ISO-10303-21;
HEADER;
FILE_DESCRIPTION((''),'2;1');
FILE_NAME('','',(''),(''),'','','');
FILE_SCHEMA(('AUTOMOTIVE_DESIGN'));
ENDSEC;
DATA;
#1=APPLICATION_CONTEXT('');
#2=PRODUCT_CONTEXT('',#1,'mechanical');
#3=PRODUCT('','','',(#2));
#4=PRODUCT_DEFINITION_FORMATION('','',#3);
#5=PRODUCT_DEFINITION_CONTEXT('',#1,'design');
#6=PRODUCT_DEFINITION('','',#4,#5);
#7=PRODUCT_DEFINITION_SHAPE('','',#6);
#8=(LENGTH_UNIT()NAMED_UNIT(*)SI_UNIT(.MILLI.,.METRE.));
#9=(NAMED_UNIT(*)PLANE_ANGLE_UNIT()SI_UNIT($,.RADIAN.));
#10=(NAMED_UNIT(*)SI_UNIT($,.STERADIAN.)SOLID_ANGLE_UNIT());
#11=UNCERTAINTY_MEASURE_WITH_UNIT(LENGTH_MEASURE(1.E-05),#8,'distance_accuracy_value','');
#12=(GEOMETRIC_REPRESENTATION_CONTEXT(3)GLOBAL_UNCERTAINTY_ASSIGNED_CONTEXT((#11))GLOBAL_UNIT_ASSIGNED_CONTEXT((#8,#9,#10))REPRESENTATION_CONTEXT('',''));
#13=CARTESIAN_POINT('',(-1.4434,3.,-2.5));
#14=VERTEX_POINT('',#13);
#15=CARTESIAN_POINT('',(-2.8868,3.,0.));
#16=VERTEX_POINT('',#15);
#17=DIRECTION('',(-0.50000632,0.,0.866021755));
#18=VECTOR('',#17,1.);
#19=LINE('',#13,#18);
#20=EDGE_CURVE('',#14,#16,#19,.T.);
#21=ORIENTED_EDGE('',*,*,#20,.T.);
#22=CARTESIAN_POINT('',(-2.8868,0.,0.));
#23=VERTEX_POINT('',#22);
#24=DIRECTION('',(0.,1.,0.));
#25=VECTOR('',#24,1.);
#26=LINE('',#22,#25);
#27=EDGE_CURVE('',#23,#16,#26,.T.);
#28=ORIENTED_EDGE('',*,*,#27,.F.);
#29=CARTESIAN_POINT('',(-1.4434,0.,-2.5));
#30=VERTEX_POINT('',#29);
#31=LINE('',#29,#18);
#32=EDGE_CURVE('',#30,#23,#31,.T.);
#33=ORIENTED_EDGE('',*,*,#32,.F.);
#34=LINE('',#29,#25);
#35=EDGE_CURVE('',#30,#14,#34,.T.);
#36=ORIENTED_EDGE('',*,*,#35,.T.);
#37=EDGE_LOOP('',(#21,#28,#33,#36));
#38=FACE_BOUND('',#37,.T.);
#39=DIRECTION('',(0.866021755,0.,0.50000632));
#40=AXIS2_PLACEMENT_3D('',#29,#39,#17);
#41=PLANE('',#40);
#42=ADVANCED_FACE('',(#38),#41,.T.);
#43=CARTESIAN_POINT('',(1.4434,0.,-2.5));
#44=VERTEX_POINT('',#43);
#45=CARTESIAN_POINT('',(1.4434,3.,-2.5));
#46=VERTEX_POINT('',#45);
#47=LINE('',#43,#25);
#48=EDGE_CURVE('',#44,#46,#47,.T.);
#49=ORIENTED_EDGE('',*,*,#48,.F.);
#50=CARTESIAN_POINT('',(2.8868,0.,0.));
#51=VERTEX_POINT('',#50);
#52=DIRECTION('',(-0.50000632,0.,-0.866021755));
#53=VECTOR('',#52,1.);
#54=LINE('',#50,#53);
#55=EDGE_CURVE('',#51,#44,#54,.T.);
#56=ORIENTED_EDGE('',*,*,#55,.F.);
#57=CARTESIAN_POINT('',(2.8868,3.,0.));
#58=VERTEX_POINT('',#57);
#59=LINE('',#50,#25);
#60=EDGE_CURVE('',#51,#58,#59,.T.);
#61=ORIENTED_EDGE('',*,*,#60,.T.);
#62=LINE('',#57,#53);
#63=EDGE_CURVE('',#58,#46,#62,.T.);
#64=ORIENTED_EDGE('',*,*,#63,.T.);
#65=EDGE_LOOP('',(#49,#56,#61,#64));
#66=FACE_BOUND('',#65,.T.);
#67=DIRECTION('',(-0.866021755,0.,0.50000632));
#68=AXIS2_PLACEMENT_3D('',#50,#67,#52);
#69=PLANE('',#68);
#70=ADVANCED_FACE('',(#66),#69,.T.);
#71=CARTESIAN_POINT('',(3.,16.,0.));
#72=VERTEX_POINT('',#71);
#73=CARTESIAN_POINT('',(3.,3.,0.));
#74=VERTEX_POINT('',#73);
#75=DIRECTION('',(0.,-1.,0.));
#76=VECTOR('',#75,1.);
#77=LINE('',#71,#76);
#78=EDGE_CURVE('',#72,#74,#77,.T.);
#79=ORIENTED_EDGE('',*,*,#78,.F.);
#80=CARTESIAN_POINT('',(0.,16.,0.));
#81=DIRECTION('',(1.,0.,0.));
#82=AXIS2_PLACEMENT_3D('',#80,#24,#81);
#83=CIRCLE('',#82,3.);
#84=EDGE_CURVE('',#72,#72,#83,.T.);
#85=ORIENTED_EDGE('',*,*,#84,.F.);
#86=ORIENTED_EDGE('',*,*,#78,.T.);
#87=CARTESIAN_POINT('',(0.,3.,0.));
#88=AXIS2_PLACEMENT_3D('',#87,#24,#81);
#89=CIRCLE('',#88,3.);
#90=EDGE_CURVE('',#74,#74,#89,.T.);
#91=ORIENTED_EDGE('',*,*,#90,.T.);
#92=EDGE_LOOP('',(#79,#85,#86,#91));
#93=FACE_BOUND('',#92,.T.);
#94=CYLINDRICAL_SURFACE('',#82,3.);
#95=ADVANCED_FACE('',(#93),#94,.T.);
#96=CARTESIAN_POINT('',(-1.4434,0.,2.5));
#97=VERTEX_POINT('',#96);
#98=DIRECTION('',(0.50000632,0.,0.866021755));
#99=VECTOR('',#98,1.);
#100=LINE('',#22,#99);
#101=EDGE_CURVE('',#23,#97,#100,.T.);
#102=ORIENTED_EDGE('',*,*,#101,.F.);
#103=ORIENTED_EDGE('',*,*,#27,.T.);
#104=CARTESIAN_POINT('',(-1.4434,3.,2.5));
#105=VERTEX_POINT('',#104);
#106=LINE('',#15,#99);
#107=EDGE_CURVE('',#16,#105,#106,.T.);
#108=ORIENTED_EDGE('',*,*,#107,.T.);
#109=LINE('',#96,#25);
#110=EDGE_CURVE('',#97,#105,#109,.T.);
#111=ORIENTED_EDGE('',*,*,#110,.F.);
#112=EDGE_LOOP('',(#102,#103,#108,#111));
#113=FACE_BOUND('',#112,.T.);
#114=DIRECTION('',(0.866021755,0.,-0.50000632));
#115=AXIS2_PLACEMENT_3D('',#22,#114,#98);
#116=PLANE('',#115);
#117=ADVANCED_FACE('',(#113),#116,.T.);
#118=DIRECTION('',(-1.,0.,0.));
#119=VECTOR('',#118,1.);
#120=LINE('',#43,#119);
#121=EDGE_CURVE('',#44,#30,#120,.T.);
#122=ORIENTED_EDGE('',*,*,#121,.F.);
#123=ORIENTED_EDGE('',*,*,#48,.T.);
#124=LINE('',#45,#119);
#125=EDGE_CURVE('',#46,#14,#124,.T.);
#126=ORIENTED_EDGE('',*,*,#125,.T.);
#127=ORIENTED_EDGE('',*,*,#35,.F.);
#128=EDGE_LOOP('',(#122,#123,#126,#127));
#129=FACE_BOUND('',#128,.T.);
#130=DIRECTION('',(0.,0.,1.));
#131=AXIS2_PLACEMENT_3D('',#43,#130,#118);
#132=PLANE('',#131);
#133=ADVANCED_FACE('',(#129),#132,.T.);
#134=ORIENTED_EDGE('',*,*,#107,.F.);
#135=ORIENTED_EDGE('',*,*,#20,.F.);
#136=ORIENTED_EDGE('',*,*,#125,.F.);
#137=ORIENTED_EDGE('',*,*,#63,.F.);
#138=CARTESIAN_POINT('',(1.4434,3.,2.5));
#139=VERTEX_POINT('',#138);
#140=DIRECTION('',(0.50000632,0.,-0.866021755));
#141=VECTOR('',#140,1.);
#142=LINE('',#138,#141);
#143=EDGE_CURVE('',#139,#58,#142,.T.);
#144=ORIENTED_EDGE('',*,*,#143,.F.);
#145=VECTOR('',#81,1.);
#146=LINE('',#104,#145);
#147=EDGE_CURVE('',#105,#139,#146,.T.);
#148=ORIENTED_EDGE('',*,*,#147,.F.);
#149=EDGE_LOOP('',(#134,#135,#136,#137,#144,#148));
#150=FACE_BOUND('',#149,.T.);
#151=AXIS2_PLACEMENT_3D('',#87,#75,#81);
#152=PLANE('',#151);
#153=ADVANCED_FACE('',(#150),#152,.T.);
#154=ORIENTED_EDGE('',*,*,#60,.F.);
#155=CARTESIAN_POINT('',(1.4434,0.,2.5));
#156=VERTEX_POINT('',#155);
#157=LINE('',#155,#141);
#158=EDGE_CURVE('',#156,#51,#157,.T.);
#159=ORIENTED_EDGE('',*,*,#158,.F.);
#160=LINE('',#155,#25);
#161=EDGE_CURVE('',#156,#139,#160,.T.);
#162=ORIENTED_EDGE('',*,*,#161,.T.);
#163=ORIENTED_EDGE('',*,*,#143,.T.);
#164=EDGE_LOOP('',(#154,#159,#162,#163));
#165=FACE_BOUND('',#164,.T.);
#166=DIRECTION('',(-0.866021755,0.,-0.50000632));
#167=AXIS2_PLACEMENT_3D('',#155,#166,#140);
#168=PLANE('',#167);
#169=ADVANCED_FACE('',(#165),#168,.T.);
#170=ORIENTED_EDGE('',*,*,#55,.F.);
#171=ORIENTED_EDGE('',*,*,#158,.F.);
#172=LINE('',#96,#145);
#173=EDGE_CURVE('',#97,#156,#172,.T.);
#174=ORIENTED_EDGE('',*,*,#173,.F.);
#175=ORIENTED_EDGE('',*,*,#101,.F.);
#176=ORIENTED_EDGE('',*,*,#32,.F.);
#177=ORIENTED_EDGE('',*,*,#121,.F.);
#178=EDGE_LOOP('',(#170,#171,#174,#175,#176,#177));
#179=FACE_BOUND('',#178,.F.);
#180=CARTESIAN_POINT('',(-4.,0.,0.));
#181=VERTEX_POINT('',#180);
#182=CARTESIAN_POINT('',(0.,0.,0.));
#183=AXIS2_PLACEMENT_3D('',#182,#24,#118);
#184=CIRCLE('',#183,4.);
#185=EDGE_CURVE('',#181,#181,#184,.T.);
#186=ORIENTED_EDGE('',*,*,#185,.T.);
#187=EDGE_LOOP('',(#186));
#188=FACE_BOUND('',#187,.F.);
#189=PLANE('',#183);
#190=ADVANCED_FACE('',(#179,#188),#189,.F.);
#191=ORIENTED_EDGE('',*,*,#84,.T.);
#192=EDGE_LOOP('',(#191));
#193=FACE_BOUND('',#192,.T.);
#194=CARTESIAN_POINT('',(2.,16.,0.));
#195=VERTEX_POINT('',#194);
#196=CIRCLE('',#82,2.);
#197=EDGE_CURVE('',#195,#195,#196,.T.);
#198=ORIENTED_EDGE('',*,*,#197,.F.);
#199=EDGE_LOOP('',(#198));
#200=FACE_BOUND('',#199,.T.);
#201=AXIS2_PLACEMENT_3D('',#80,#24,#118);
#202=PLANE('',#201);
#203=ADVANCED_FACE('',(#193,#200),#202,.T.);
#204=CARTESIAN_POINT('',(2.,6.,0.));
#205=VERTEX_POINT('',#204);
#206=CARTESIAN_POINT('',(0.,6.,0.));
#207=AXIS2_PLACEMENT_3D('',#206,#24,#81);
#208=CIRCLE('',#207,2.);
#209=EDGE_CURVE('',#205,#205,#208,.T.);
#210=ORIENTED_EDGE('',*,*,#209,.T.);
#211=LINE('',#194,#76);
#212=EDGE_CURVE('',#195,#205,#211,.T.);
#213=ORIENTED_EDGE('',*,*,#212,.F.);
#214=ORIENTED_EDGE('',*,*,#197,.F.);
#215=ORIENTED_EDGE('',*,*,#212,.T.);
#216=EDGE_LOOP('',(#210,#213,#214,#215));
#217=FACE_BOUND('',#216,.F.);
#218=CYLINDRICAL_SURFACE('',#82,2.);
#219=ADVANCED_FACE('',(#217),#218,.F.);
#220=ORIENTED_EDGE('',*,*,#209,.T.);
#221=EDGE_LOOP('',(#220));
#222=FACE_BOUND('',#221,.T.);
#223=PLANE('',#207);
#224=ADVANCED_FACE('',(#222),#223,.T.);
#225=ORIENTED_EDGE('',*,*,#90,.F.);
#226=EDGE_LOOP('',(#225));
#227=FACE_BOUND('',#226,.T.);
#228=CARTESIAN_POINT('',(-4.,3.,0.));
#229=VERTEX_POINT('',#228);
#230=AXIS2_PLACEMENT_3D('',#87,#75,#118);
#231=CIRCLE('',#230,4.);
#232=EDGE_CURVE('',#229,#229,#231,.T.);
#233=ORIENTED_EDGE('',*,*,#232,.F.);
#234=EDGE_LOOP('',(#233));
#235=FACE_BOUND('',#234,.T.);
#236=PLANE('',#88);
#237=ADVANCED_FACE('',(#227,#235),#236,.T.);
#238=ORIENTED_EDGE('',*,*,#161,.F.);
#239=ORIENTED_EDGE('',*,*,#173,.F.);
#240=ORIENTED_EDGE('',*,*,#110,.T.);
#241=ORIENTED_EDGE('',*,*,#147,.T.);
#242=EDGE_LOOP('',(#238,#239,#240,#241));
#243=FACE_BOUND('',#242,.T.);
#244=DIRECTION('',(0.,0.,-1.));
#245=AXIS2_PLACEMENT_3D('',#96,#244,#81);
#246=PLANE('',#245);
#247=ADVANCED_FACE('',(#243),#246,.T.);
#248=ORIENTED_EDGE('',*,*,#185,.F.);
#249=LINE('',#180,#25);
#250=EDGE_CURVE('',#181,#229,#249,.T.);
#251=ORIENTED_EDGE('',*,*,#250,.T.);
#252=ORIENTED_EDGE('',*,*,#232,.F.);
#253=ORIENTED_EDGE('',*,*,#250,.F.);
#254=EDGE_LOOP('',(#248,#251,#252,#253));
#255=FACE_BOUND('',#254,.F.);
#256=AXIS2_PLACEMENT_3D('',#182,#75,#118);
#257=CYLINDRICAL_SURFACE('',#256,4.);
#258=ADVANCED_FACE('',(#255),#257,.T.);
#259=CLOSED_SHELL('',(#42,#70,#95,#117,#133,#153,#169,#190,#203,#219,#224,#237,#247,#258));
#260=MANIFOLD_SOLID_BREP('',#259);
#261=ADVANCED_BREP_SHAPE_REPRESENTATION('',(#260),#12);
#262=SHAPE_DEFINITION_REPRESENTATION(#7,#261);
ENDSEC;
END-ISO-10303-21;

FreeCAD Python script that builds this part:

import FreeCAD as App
import Part
import Sketcher
from FreeCAD import Vector
Q = App.Units.Quantity


def add_polygon(sketch, points):
    """Adds a closed chain of lines whose ends are joined by coincident constraints."""
    first, n = sketch.GeometryCount, len(points)
    for a, b in zip(points, points[1:] + points[:1]):
        sketch.addGeometry(Part.LineSegment(App.Vector(*a, 0), App.Vector(*b, 0)), False)
    for i in range(n):
        sketch.addConstraint(Sketcher.Constraint("Coincident", first + i, 2, first + (i + 1) % n, 1))

doc = App.newDocument("Part")
body = doc.addObject("PartDesign::Body", "Body")

# Sketch on XZ plane
sketch1 = doc.addObject("Sketcher::SketchObject", "Sketch")
body.addObject(sketch1)
sketch1.AttachmentSupport = (doc.XZ_Plane, [""])
sketch1.MapMode = "FlatFace"
sketch1.addGeometry(Part.Circle(Vector(0, 0, 0), Vector(0, 0, 1), 4), False)
sketch1.addConstraint([
    Sketcher.Constraint("Coincident", 0, 3, -1, 1),
    Sketcher.Constraint("Diameter", 0, 8.0),
])
pad1 = doc.addObject("PartDesign::Pad", "Pad")
body.addObject(pad1)
pad1.Profile = sketch1
pad1.Length = 16
pad1.Reversed = True

# Sketch on XZ plane
sketch2 = doc.addObject("Sketcher::SketchObject", "Sketch001")
body.addObject(sketch2)
sketch2.AttachmentSupport = (doc.XZ_Plane, [""])
sketch2.MapMode = "FlatFace"
add_polygon(sketch2, [(-1.4, 2.5), (-2.9, 0), (-1.4, -2.5), (1.4, -2.5), (2.9, 0), (1.4, 2.5)])  # lines 0-5
sketch2.addConstraint([
    Sketcher.Constraint("Horizontal", 2),
    Sketcher.Constraint("Horizontal", 5),
    Sketcher.Constraint("Symmetric", 0, 2, 3, 2, -1, 1),
    Sketcher.Constraint("Symmetric", 1, 2, 4, 2, -1, 1),
    Sketcher.Constraint("PointOnObject", 0, 2, -1),
    Sketcher.Constraint("Parallel", 0, 3),
    Sketcher.Constraint("Vertical", 2, 2, 4, 2),
    Sketcher.Constraint("DistanceY", 2, 2, 4, 2, 5.0),
    Sketcher.Constraint("Angle", 0, Q("-120.0004 deg")),
    Sketcher.Constraint("DistanceX", 2, 1, 2, 2, 2.8868),
])
pocket1 = doc.addObject("PartDesign::Pocket", "Pocket")
body.addObject(pocket1)
pocket1.Profile = sketch2
pocket1.Length = 3

# Sketch on XZ plane
sketch3 = doc.addObject("Sketcher::SketchObject", "Sketch002")
body.addObject(sketch3)
sketch3.AttachmentSupport = (doc.XZ_Plane, [""])
sketch3.MapMode = "FlatFace"
sketch3.AttachmentOffset = App.Placement(Vector(0, 0, -16), App.Rotation())
sketch3.addGeometry([
    Part.Circle(Vector(0, 0, 0), Vector(0, 0, 1), 4),
    Part.Circle(Vector(0, 0, 0), Vector(0, 0, 1), 3),
], False)
sketch3.addConstraint([
    Sketcher.Constraint("Coincident", 0, 3, -1, 1),
    Sketcher.Constraint("Coincident", 1, 3, -1, 1),
    Sketcher.Constraint("Diameter", 0, 8.0),
    Sketcher.Constraint("Diameter", 1, 6.0),
])
pocket2 = doc.addObject("PartDesign::Pocket", "Pocket001")
body.addObject(pocket2)
pocket2.Profile = sketch3
pocket2.Length = 13
pocket2.Reversed = True

# Sketch on XZ plane
sketch4 = doc.addObject("Sketcher::SketchObject", "Sketch003")
body.addObject(sketch4)
sketch4.AttachmentSupport = (doc.XZ_Plane, [""])
sketch4.MapMode = "FlatFace"
sketch4.AttachmentOffset = App.Placement(Vector(0, 0, -16), App.Rotation())
sketch4.addGeometry(Part.Circle(Vector(0, 0, 0), Vector(0, 0, 1), 2), False)
sketch4.addConstraint([
    Sketcher.Constraint("Coincident", 0, 3, -1, 1),
    Sketcher.Constraint("Diameter", 0, 4.0),
])
pocket3 = doc.addObject("PartDesign::Pocket", "Pocket002")
body.addObject(pocket3)
pocket3.Profile = sketch4
pocket3.Length = 10
pocket3.Reversed = True

doc.recompute()
